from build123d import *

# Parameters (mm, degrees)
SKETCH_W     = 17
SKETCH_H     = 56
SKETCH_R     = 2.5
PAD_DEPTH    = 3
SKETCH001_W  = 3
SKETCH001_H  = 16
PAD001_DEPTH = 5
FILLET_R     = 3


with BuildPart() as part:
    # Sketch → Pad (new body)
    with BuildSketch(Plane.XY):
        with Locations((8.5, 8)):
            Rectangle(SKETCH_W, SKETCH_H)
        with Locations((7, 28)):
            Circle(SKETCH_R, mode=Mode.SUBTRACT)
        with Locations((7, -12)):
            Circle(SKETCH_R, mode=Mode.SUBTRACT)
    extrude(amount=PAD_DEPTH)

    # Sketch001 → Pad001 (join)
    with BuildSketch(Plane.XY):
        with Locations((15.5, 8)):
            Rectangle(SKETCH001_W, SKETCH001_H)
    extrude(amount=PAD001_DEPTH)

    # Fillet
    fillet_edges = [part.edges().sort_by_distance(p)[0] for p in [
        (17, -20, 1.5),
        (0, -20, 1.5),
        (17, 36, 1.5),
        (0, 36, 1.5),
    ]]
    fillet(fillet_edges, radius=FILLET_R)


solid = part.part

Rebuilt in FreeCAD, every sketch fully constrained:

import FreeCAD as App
import Part
import Sketcher

V = App.Vector
Q = App.Units.Quantity


def edges_at(feature, points):
    """Names of the edges that pass closest to the given points."""
    edges = feature.Shape.Edges
    near = lambda p: min(range(len(edges)), key=lambda i: edges[i].distToShape(Part.Vertex(*p))[0])
    return sorted({f"Edge{near(p) + 1}" for p in points})

doc = App.newDocument("Part")
body = doc.addObject("PartDesign::Body", "Body")

sketch1 = doc.addObject("Sketcher::SketchObject", "Sketch")
body.addObject(sketch1)
sketch1.AttachmentSupport = (doc.XY_Plane, [""])
sketch1.MapMode = "FlatFace"
sketch1.addGeometry([
    Part.LineSegment(V(0, 36, 0), V(0, -20, 0)),
    Part.LineSegment(V(0, -20, 0), V(17, -20, 0)),
    Part.LineSegment(V(17, -20, 0), V(17, 36, 0)),
    Part.LineSegment(V(17, 36, 0), V(0, 36, 0)),
    Part.Circle(V(7, -12, 0), V(0, 0, 1), 2.5),
    Part.Circle(V(7, 28, 0), V(0, 0, 1), 2.5),
], False)
sketch1.addConstraint([
    Sketcher.Constraint("Coincident", 0, 2, 1, 1),
    Sketcher.Constraint("Coincident", 1, 2, 2, 1),
    Sketcher.Constraint("Coincident", 2, 2, 3, 1),
    Sketcher.Constraint("Coincident", 3, 2, 0, 1),
    Sketcher.Constraint("Vertical", 0),
    Sketcher.Constraint("Horizontal", 1),
    Sketcher.Constraint("Vertical", 2),
    Sketcher.Constraint("Horizontal", 3),
    Sketcher.Constraint("Equal", 4, 5),
    Sketcher.Constraint("PointOnObject", 0, 2, -2),
    Sketcher.Constraint("Vertical", 4, 3, 5, 3),
    Sketcher.Constraint("Diameter", 4, Q("5 mm")),
    Sketcher.Constraint("DistanceX", 1, 1, 1, 2, Q("17 mm")),
    Sketcher.Constraint("DistanceY", 0, 2, 0, 1, Q("56 mm")),
    Sketcher.Constraint("DistanceX", -1, 1, 4, 3, Q("7 mm")),
    Sketcher.Constraint("DistanceY", 4, 3, -1, 1, Q("12 mm")),
    Sketcher.Constraint("DistanceY", -1, 1, 5, 3, Q("28 mm")),
    Sketcher.Constraint("DistanceY", 0, 2, -1, 1, Q("20 mm")),
])
pad1 = doc.addObject("PartDesign::Pad", "Pad")
body.addObject(pad1)
pad1.Profile = sketch1
pad1.Length = 3

sketch2 = doc.addObject("Sketcher::SketchObject", "Sketch001")
body.addObject(sketch2)
sketch2.AttachmentSupport = (doc.XY_Plane, [""])
sketch2.MapMode = "FlatFace"
sketch2.addGeometry([
    Part.LineSegment(V(14, 16, 0), V(14, 0, 0)),
    Part.LineSegment(V(14, 0, 0), V(17, 0, 0)),
    Part.LineSegment(V(17, 0, 0), V(17, 16, 0)),
    Part.LineSegment(V(17, 16, 0), V(14, 16, 0)),
], False)
sketch2.addConstraint([
    Sketcher.Constraint("Coincident", 0, 2, 1, 1),
    Sketcher.Constraint("Coincident", 1, 2, 2, 1),
    Sketcher.Constraint("Coincident", 2, 2, 3, 1),
    Sketcher.Constraint("Coincident", 3, 2, 0, 1),
    Sketcher.Constraint("Vertical", 0),
    Sketcher.Constraint("Horizontal", 1),
    Sketcher.Constraint("Vertical", 2),
    Sketcher.Constraint("Horizontal", 3),
    Sketcher.Constraint("PointOnObject", 0, 2, -1),
    Sketcher.Constraint("DistanceX", 1, 1, 1, 2, Q("3 mm")),
    Sketcher.Constraint("DistanceY", 0, 2, 0, 1, Q("16 mm")),
    Sketcher.Constraint("DistanceX", -1, 1, 0, 2, Q("14 mm")),
])
pad2 = doc.addObject("PartDesign::Pad", "Pad001")
body.addObject(pad2)
pad2.Profile = sketch2
pad2.Length = 5
doc.recompute()

fillet = doc.addObject("PartDesign::Fillet", "Fillet")
body.addObject(fillet)
fillet.Base = (pad2, edges_at(pad2, [
    (17, -20, 1.5),
    (0, -20, 1.5),
    (17, 36, 1.5),
    (0, 36, 1.5),
]))
fillet.Radius = 3

doc.recompute()
